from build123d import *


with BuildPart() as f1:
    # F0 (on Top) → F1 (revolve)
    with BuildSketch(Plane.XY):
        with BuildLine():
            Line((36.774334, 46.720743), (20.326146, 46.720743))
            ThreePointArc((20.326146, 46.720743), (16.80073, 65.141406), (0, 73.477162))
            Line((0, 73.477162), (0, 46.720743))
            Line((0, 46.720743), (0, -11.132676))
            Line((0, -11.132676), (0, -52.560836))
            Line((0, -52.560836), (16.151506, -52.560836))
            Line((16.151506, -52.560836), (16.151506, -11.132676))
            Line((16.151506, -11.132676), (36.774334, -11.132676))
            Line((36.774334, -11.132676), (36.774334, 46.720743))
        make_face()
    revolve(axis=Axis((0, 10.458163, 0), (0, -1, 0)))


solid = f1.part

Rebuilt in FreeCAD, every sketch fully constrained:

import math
import FreeCAD as App
import Part
import Sketcher
from FreeCAD import Vector
Q = App.Units.Quantity

doc = App.newDocument("Part")
body = doc.addObject("PartDesign::Body", "Body")

# Sketch on XY plane
sketch1 = body.newObject("Sketcher::SketchObject", "Sketch")
sketch1.AttachmentSupport = (doc.getObject("XY_Plane"), [""])
sketch1.MapMode = "FlatFace"
sketch1.addGeometry([
    Part.LineSegment(Vector(36.774334, 46.720743, 0), Vector(20.326146, 46.720743, 0)),  # 0
    Part.ArcOfCircle(Part.Circle(Vector(0, 52.378334, 0), Vector(0, 0, 1), 21.098828), math.radians(-15.554041), math.radians(89.999999)),  # 1
    Part.LineSegment(Vector(0, 73.477162, 0), Vector(0, -52.560836, 0)),  # 2
    Part.LineSegment(Vector(0, -52.560836, 0), Vector(16.151506, -52.560836, 0)),  # 3
    Part.LineSegment(Vector(16.151506, -52.560836, 0), Vector(16.151506, -11.132676, 0)),  # 4
    Part.LineSegment(Vector(16.151506, -11.132676, 0), Vector(36.774334, -11.132676, 0)),  # 5
    Part.LineSegment(Vector(36.774334, -11.132676, 0), Vector(36.774334, 46.720743, 0)),  # 6
], False)
sketch1.addConstraint([
    Sketcher.Constraint("Coincident", 0, 2, 1, 1),
    Sketcher.Constraint("Coincident", 1, 2, 2, 1),
    Sketcher.Constraint("Coincident", 2, 2, 3, 1),
    Sketcher.Constraint("Coincident", 3, 2, 4, 1),
    Sketcher.Constraint("Coincident", 4, 2, 5, 1),
    Sketcher.Constraint("Coincident", 5, 2, 6, 1),
    Sketcher.Constraint("Coincident", 6, 2, 0, 1),
    Sketcher.Constraint("Horizontal", 0),
    Sketcher.Constraint("Vertical", 2),
    Sketcher.Constraint("Horizontal", 3),
    Sketcher.Constraint("Vertical", 4),
    Sketcher.Constraint("Horizontal", 5),
    Sketcher.Constraint("Vertical", 6),
    Sketcher.Constraint("PointOnObject", 1, 3, -2),
    Sketcher.Constraint("PointOnObject", 1, 2, -2),
    Sketcher.Constraint("DistanceY", 2, 2, 2, 1, Q("126.037998 mm")),
    Sketcher.Constraint("Radius", 1, Q("21.098828 mm")),
    Sketcher.Constraint("DistanceX", 0, 2, 0, 1, Q("16.448188 mm")),
    Sketcher.Constraint("DistanceX", 5, 1, 5, 2, Q("20.622828 mm")),
    Sketcher.Constraint("DistanceY", 4, 1, 4, 2, Q("41.42816 mm")),
    Sketcher.Constraint("DistanceY", 6, 1, 6, 2, Q("57.853419 mm")),
    Sketcher.Constraint("DistanceY", -1, 1, 1, 2, Q("73.477162 mm")),
])
revolution = body.newObject("PartDesign::Revolution", "Revolution")
revolution.Profile = sketch1
revolution.ReferenceAxis = (sketch1, ["V_Axis"])
revolution.Angle = 360

doc.recompute()
